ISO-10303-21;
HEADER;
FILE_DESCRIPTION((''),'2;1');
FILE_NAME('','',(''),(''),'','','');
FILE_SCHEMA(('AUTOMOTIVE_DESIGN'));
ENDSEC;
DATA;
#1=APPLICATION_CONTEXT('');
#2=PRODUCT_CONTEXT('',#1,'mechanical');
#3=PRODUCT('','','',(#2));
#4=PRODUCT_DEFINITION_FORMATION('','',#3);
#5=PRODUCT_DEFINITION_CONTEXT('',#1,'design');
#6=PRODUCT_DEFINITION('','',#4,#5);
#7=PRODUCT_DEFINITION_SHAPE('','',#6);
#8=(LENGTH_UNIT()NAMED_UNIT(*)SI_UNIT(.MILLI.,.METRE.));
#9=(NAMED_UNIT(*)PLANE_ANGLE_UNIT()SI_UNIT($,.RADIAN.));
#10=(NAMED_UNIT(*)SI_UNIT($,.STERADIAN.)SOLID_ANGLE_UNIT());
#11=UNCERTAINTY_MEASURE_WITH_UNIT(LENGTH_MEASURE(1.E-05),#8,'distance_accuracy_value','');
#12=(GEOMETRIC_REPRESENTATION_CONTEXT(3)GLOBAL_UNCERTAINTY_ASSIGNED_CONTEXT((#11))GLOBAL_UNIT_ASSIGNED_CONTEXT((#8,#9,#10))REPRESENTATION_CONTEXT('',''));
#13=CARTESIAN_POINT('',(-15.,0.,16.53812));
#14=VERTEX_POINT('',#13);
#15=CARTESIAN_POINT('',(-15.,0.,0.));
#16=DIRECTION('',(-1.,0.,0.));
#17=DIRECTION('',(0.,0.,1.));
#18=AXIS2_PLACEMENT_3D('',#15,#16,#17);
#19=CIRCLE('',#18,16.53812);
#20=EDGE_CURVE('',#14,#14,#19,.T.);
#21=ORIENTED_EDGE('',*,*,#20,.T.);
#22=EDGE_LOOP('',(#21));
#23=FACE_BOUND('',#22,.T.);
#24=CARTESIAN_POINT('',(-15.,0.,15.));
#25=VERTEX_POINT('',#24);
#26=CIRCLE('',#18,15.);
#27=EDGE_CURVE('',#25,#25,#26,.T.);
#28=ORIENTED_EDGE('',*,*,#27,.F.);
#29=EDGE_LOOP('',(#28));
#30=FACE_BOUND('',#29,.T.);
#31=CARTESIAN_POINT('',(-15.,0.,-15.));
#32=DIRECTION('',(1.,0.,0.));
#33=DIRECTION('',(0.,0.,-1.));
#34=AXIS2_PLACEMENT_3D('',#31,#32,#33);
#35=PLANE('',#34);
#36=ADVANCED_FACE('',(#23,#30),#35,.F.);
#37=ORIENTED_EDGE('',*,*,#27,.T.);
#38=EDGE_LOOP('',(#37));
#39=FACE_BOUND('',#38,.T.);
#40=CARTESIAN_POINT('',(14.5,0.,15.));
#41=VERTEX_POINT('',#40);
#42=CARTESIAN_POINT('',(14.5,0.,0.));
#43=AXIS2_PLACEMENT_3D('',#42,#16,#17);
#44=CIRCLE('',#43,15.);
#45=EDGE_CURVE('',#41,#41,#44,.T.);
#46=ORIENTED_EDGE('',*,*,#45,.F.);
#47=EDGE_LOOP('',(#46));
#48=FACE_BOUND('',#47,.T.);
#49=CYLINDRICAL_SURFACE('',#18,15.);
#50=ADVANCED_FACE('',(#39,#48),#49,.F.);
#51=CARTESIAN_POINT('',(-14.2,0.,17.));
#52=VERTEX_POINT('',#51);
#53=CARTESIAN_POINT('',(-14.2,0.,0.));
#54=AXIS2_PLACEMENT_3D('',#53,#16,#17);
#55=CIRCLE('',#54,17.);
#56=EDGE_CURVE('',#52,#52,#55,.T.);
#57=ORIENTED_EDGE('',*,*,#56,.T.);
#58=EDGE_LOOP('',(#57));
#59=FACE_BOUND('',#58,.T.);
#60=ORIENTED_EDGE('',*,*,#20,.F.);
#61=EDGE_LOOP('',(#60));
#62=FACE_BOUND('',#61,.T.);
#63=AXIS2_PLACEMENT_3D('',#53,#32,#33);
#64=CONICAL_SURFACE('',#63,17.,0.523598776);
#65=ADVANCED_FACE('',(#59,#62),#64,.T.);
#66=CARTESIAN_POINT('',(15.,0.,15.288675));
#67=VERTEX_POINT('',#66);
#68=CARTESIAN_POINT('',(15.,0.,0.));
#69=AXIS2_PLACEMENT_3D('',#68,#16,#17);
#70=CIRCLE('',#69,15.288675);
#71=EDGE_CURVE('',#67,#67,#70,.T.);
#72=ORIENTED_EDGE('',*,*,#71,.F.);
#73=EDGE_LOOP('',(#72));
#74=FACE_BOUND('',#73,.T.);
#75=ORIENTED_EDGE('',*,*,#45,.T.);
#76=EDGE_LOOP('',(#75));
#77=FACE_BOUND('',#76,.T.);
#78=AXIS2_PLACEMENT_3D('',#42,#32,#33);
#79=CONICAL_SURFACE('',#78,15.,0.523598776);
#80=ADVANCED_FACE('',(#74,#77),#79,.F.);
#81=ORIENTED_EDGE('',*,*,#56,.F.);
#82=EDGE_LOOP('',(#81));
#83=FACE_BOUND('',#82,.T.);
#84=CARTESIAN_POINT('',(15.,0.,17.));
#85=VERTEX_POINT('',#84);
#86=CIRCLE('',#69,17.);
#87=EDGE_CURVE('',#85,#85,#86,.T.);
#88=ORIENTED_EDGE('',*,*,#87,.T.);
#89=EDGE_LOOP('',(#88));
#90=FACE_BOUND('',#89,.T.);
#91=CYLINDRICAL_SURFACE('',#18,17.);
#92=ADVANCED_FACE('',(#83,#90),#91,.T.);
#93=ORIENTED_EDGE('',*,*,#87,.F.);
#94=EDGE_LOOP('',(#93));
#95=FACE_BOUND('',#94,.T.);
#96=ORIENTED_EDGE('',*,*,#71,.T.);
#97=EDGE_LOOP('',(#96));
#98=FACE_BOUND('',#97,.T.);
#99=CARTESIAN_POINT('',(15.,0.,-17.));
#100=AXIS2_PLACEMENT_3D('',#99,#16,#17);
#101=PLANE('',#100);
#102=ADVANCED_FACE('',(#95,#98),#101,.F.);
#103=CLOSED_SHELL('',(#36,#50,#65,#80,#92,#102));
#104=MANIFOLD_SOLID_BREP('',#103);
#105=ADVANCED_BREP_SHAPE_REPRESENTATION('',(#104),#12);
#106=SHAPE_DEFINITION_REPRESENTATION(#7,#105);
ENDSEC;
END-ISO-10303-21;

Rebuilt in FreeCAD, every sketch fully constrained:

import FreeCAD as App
import Part
import Sketcher
Q = App.Units.Quantity

doc = App.newDocument("Part")
body = doc.addObject("PartDesign::Body", "Body")

sketch1 = doc.addObject("Sketcher::SketchObject", "Sketch")
body.addObject(sketch1)
sketch1.AttachmentSupport = (doc.XZ_Plane, [""])
sketch1.MapMode = "FlatFace"
sketch1.addGeometry([
    Part.LineSegment(App.Vector(15, -17, 0), App.Vector(-14.2, -17, 0)),
    Part.LineSegment(App.Vector(-14.2, -17, 0), App.Vector(-15, -16.5, 0)),
    Part.LineSegment(App.Vector(-15, -16.5, 0), App.Vector(-15, -15, 0)),
    Part.LineSegment(App.Vector(-15, -15, 0), App.Vector(14.5, -15, 0)),
    Part.LineSegment(App.Vector(14.5, -15, 0), App.Vector(15, -15.3, 0)),
    Part.LineSegment(App.Vector(15, -15.3, 0), App.Vector(15, -17, 0)),
], False)
sketch1.addConstraint([
    Sketcher.Constraint("Coincident", 0, 2, 1, 1),
    Sketcher.Constraint("Coincident", 1, 2, 2, 1),
    Sketcher.Constraint("Coincident", 2, 2, 3, 1),
    Sketcher.Constraint("Coincident", 3, 2, 4, 1),
    Sketcher.Constraint("Coincident", 4, 2, 5, 1),
    Sketcher.Constraint("Coincident", 5, 2, 0, 1),
    Sketcher.Constraint("Horizontal", 0),
    Sketcher.Constraint("Vertical", 2),
    Sketcher.Constraint("Horizontal", 3),
    Sketcher.Constraint("Vertical", 5),
    Sketcher.Constraint("Parallel", 1, 4),
    Sketcher.Constraint("Angle", 1, Q("150 deg")),
    Sketcher.Constraint("DistanceX", 0, 2, 0, 1, Q("29.2 mm")),
    Sketcher.Constraint("DistanceX", 3, 1, 3, 2, Q("29.5 mm")),
    Sketcher.Constraint("DistanceY", 0, 2, -1, 1, Q("17 mm")),
    Sketcher.Constraint("DistanceX", 1, 2, -1, 1, Q("15 mm")),
    Sketcher.Constraint("DistanceY", 2, 2, -1, 1, Q("15 mm")),
    Sketcher.Constraint("DistanceX", -1, 1, 4, 2, Q("15 mm")),
])
revolution = doc.addObject("PartDesign::Revolution", "Revolution")
body.addObject(revolution)
revolution.Profile = sketch1
revolution.ReferenceAxis = (sketch1, ["H_Axis"])
revolution.Angle = 360

doc.recompute()
